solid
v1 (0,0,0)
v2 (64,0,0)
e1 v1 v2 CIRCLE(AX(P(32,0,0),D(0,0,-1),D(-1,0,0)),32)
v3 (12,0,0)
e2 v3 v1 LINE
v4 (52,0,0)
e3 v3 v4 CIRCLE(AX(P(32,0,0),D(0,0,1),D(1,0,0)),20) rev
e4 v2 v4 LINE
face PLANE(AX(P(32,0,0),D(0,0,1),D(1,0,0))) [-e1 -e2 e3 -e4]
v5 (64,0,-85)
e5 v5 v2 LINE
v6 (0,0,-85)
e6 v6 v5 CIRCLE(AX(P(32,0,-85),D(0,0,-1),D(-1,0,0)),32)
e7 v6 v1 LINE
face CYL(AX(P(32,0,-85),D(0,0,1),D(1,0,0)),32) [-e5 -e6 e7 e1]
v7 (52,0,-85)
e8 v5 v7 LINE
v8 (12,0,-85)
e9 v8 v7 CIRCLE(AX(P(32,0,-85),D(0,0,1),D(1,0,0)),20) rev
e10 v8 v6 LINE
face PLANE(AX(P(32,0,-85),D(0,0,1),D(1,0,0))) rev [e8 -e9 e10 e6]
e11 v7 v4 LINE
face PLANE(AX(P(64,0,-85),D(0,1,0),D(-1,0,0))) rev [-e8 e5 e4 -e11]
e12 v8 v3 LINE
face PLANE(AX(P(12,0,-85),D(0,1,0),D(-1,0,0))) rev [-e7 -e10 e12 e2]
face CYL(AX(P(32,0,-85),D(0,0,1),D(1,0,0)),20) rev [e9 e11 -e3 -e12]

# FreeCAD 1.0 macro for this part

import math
import FreeCAD as App
import Part
import Sketcher
from FreeCAD import Vector

doc = App.newDocument("Part")
body = doc.addObject("PartDesign::Body", "Body")

# Sketch on XY plane
sketch1 = body.newObject("Sketcher::SketchObject", "Sketch")
sketch1.AttachmentSupport = (doc.getObject("XY_Plane"), [""])
sketch1.MapMode = "FlatFace"
sketch1.addGeometry([
    Part.ArcOfCircle(Part.Circle(Vector(32, 0, 0), Vector(0, 0, 1), 32), math.radians(0), math.radians(180)),
    Part.LineSegment(Vector(0, 0, 0), Vector(12, 0, 0)),
    Part.ArcOfCircle(Part.Circle(Vector(32, 0, 0), Vector(0, 0, 1), 20), math.radians(0), math.radians(180)),
    Part.LineSegment(Vector(52, 0, 0), Vector(64, 0, 0)),
], False)
sketch1.addConstraint([
    Sketcher.Constraint("Coincident", 0, 2, 1, 1),
    Sketcher.Constraint("Coincident", 1, 2, 2, 2),
    Sketcher.Constraint("Coincident", 2, 1, 3, 1),
    Sketcher.Constraint("Coincident", 3, 2, 0, 1),
    Sketcher.Constraint("Horizontal", 1),
    Sketcher.Constraint("Horizontal", 3),
    Sketcher.Constraint("Coincident", 0, 2, -1, 1),
    Sketcher.Constraint("Coincident", 2, 3, 0, 3),
    Sketcher.Constraint("PointOnObject", 0, 3, -1),
    Sketcher.Constraint("PointOnObject", 2, 1, -1),
    Sketcher.Constraint("Radius", 0, 32.0),
    Sketcher.Constraint("Radius", 2, 20.0),
])
pad1 = body.newObject("PartDesign::Pad", "Pad")
pad1.Profile = sketch1
pad1.Length = 85
pad1.Reversed = True

doc.recompute()
